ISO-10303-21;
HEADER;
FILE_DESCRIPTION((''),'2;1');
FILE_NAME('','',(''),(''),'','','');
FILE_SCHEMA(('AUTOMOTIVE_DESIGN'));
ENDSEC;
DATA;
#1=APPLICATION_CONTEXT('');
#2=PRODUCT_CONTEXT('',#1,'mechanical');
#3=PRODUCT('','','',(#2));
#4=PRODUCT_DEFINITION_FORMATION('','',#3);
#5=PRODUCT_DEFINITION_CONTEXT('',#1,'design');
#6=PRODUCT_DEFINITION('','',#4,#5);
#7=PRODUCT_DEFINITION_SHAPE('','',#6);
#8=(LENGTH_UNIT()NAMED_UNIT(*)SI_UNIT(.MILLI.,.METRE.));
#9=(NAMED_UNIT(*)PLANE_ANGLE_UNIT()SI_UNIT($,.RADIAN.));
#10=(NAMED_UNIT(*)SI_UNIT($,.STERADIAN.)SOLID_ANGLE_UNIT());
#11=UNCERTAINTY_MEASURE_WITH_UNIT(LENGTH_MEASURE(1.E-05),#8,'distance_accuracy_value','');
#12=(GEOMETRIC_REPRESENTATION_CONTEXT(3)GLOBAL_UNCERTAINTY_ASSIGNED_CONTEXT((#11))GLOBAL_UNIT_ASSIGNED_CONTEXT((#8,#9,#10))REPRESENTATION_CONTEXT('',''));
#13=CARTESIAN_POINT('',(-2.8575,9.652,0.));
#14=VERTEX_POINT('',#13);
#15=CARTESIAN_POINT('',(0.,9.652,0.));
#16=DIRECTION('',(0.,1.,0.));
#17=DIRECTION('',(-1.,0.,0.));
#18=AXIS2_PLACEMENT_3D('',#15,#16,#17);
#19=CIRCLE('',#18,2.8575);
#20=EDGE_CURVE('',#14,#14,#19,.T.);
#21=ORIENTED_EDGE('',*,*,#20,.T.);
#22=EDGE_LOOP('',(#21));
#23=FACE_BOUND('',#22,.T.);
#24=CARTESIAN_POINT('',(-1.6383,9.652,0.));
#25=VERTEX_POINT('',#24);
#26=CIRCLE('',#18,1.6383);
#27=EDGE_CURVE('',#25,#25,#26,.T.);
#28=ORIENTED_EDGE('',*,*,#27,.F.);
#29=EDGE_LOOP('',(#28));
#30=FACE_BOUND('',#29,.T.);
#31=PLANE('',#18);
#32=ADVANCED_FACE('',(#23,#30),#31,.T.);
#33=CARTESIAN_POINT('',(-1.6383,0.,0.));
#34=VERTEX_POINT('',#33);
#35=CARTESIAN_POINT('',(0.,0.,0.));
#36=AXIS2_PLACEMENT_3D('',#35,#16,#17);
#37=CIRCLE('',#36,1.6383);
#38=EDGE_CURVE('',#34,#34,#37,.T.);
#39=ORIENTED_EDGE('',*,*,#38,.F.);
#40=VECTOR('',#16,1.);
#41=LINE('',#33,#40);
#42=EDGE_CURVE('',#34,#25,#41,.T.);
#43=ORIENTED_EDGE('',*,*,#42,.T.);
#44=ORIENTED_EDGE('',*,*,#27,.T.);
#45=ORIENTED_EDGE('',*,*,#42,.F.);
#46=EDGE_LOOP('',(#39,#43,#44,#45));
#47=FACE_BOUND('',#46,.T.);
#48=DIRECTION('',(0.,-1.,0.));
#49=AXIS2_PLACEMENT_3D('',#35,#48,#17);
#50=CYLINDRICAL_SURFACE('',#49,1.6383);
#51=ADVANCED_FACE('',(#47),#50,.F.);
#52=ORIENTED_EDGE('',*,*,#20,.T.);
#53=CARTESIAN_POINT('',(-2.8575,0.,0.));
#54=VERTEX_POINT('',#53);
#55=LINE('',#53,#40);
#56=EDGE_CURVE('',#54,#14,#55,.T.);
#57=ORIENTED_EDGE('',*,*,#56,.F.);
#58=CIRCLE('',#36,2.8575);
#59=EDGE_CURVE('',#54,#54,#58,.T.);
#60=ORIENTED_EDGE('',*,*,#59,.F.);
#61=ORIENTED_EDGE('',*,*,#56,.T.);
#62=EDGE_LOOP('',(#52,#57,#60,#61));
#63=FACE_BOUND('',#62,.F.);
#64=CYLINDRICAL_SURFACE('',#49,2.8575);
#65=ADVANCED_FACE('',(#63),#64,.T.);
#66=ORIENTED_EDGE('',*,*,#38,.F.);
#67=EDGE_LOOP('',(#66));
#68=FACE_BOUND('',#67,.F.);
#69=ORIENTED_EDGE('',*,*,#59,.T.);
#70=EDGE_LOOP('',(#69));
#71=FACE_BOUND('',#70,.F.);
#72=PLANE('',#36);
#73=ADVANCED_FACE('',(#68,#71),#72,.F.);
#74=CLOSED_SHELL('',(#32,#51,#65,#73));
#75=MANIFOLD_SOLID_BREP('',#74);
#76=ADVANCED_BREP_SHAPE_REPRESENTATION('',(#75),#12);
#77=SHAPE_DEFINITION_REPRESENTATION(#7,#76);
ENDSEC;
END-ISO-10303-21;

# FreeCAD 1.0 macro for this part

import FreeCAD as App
import Part
import Sketcher
Q = App.Units.Quantity

doc = App.newDocument("Part")
body = doc.addObject("PartDesign::Body", "Body")

sketch1 = doc.addObject("Sketcher::SketchObject", "Sketch")
body.addObject(sketch1)
sketch1.AttachmentSupport = (doc.XZ_Plane, [""])
sketch1.MapMode = "FlatFace"
sketch1.addGeometry([
    Part.Circle(App.Vector(0, 0, 0), App.Vector(0, 0, 1), 2.9),
    Part.Circle(App.Vector(0, 0, 0), App.Vector(0, 0, 1), 1.6),
], False)
sketch1.addConstraint([
    Sketcher.Constraint("Coincident", 0, 3, -1, 1),
    Sketcher.Constraint("Coincident", 1, 3, -1, 1),
    Sketcher.Constraint("Diameter", 0, Q("0.225 in")),
    Sketcher.Constraint("Diameter", 1, Q("0.129 in")),
])
pad1 = doc.addObject("PartDesign::Pad", "Pad")
body.addObject(pad1)
pad1.Profile = sketch1
pad1.Length = Q("0.38 in")
pad1.Reversed = True

doc.recompute()
